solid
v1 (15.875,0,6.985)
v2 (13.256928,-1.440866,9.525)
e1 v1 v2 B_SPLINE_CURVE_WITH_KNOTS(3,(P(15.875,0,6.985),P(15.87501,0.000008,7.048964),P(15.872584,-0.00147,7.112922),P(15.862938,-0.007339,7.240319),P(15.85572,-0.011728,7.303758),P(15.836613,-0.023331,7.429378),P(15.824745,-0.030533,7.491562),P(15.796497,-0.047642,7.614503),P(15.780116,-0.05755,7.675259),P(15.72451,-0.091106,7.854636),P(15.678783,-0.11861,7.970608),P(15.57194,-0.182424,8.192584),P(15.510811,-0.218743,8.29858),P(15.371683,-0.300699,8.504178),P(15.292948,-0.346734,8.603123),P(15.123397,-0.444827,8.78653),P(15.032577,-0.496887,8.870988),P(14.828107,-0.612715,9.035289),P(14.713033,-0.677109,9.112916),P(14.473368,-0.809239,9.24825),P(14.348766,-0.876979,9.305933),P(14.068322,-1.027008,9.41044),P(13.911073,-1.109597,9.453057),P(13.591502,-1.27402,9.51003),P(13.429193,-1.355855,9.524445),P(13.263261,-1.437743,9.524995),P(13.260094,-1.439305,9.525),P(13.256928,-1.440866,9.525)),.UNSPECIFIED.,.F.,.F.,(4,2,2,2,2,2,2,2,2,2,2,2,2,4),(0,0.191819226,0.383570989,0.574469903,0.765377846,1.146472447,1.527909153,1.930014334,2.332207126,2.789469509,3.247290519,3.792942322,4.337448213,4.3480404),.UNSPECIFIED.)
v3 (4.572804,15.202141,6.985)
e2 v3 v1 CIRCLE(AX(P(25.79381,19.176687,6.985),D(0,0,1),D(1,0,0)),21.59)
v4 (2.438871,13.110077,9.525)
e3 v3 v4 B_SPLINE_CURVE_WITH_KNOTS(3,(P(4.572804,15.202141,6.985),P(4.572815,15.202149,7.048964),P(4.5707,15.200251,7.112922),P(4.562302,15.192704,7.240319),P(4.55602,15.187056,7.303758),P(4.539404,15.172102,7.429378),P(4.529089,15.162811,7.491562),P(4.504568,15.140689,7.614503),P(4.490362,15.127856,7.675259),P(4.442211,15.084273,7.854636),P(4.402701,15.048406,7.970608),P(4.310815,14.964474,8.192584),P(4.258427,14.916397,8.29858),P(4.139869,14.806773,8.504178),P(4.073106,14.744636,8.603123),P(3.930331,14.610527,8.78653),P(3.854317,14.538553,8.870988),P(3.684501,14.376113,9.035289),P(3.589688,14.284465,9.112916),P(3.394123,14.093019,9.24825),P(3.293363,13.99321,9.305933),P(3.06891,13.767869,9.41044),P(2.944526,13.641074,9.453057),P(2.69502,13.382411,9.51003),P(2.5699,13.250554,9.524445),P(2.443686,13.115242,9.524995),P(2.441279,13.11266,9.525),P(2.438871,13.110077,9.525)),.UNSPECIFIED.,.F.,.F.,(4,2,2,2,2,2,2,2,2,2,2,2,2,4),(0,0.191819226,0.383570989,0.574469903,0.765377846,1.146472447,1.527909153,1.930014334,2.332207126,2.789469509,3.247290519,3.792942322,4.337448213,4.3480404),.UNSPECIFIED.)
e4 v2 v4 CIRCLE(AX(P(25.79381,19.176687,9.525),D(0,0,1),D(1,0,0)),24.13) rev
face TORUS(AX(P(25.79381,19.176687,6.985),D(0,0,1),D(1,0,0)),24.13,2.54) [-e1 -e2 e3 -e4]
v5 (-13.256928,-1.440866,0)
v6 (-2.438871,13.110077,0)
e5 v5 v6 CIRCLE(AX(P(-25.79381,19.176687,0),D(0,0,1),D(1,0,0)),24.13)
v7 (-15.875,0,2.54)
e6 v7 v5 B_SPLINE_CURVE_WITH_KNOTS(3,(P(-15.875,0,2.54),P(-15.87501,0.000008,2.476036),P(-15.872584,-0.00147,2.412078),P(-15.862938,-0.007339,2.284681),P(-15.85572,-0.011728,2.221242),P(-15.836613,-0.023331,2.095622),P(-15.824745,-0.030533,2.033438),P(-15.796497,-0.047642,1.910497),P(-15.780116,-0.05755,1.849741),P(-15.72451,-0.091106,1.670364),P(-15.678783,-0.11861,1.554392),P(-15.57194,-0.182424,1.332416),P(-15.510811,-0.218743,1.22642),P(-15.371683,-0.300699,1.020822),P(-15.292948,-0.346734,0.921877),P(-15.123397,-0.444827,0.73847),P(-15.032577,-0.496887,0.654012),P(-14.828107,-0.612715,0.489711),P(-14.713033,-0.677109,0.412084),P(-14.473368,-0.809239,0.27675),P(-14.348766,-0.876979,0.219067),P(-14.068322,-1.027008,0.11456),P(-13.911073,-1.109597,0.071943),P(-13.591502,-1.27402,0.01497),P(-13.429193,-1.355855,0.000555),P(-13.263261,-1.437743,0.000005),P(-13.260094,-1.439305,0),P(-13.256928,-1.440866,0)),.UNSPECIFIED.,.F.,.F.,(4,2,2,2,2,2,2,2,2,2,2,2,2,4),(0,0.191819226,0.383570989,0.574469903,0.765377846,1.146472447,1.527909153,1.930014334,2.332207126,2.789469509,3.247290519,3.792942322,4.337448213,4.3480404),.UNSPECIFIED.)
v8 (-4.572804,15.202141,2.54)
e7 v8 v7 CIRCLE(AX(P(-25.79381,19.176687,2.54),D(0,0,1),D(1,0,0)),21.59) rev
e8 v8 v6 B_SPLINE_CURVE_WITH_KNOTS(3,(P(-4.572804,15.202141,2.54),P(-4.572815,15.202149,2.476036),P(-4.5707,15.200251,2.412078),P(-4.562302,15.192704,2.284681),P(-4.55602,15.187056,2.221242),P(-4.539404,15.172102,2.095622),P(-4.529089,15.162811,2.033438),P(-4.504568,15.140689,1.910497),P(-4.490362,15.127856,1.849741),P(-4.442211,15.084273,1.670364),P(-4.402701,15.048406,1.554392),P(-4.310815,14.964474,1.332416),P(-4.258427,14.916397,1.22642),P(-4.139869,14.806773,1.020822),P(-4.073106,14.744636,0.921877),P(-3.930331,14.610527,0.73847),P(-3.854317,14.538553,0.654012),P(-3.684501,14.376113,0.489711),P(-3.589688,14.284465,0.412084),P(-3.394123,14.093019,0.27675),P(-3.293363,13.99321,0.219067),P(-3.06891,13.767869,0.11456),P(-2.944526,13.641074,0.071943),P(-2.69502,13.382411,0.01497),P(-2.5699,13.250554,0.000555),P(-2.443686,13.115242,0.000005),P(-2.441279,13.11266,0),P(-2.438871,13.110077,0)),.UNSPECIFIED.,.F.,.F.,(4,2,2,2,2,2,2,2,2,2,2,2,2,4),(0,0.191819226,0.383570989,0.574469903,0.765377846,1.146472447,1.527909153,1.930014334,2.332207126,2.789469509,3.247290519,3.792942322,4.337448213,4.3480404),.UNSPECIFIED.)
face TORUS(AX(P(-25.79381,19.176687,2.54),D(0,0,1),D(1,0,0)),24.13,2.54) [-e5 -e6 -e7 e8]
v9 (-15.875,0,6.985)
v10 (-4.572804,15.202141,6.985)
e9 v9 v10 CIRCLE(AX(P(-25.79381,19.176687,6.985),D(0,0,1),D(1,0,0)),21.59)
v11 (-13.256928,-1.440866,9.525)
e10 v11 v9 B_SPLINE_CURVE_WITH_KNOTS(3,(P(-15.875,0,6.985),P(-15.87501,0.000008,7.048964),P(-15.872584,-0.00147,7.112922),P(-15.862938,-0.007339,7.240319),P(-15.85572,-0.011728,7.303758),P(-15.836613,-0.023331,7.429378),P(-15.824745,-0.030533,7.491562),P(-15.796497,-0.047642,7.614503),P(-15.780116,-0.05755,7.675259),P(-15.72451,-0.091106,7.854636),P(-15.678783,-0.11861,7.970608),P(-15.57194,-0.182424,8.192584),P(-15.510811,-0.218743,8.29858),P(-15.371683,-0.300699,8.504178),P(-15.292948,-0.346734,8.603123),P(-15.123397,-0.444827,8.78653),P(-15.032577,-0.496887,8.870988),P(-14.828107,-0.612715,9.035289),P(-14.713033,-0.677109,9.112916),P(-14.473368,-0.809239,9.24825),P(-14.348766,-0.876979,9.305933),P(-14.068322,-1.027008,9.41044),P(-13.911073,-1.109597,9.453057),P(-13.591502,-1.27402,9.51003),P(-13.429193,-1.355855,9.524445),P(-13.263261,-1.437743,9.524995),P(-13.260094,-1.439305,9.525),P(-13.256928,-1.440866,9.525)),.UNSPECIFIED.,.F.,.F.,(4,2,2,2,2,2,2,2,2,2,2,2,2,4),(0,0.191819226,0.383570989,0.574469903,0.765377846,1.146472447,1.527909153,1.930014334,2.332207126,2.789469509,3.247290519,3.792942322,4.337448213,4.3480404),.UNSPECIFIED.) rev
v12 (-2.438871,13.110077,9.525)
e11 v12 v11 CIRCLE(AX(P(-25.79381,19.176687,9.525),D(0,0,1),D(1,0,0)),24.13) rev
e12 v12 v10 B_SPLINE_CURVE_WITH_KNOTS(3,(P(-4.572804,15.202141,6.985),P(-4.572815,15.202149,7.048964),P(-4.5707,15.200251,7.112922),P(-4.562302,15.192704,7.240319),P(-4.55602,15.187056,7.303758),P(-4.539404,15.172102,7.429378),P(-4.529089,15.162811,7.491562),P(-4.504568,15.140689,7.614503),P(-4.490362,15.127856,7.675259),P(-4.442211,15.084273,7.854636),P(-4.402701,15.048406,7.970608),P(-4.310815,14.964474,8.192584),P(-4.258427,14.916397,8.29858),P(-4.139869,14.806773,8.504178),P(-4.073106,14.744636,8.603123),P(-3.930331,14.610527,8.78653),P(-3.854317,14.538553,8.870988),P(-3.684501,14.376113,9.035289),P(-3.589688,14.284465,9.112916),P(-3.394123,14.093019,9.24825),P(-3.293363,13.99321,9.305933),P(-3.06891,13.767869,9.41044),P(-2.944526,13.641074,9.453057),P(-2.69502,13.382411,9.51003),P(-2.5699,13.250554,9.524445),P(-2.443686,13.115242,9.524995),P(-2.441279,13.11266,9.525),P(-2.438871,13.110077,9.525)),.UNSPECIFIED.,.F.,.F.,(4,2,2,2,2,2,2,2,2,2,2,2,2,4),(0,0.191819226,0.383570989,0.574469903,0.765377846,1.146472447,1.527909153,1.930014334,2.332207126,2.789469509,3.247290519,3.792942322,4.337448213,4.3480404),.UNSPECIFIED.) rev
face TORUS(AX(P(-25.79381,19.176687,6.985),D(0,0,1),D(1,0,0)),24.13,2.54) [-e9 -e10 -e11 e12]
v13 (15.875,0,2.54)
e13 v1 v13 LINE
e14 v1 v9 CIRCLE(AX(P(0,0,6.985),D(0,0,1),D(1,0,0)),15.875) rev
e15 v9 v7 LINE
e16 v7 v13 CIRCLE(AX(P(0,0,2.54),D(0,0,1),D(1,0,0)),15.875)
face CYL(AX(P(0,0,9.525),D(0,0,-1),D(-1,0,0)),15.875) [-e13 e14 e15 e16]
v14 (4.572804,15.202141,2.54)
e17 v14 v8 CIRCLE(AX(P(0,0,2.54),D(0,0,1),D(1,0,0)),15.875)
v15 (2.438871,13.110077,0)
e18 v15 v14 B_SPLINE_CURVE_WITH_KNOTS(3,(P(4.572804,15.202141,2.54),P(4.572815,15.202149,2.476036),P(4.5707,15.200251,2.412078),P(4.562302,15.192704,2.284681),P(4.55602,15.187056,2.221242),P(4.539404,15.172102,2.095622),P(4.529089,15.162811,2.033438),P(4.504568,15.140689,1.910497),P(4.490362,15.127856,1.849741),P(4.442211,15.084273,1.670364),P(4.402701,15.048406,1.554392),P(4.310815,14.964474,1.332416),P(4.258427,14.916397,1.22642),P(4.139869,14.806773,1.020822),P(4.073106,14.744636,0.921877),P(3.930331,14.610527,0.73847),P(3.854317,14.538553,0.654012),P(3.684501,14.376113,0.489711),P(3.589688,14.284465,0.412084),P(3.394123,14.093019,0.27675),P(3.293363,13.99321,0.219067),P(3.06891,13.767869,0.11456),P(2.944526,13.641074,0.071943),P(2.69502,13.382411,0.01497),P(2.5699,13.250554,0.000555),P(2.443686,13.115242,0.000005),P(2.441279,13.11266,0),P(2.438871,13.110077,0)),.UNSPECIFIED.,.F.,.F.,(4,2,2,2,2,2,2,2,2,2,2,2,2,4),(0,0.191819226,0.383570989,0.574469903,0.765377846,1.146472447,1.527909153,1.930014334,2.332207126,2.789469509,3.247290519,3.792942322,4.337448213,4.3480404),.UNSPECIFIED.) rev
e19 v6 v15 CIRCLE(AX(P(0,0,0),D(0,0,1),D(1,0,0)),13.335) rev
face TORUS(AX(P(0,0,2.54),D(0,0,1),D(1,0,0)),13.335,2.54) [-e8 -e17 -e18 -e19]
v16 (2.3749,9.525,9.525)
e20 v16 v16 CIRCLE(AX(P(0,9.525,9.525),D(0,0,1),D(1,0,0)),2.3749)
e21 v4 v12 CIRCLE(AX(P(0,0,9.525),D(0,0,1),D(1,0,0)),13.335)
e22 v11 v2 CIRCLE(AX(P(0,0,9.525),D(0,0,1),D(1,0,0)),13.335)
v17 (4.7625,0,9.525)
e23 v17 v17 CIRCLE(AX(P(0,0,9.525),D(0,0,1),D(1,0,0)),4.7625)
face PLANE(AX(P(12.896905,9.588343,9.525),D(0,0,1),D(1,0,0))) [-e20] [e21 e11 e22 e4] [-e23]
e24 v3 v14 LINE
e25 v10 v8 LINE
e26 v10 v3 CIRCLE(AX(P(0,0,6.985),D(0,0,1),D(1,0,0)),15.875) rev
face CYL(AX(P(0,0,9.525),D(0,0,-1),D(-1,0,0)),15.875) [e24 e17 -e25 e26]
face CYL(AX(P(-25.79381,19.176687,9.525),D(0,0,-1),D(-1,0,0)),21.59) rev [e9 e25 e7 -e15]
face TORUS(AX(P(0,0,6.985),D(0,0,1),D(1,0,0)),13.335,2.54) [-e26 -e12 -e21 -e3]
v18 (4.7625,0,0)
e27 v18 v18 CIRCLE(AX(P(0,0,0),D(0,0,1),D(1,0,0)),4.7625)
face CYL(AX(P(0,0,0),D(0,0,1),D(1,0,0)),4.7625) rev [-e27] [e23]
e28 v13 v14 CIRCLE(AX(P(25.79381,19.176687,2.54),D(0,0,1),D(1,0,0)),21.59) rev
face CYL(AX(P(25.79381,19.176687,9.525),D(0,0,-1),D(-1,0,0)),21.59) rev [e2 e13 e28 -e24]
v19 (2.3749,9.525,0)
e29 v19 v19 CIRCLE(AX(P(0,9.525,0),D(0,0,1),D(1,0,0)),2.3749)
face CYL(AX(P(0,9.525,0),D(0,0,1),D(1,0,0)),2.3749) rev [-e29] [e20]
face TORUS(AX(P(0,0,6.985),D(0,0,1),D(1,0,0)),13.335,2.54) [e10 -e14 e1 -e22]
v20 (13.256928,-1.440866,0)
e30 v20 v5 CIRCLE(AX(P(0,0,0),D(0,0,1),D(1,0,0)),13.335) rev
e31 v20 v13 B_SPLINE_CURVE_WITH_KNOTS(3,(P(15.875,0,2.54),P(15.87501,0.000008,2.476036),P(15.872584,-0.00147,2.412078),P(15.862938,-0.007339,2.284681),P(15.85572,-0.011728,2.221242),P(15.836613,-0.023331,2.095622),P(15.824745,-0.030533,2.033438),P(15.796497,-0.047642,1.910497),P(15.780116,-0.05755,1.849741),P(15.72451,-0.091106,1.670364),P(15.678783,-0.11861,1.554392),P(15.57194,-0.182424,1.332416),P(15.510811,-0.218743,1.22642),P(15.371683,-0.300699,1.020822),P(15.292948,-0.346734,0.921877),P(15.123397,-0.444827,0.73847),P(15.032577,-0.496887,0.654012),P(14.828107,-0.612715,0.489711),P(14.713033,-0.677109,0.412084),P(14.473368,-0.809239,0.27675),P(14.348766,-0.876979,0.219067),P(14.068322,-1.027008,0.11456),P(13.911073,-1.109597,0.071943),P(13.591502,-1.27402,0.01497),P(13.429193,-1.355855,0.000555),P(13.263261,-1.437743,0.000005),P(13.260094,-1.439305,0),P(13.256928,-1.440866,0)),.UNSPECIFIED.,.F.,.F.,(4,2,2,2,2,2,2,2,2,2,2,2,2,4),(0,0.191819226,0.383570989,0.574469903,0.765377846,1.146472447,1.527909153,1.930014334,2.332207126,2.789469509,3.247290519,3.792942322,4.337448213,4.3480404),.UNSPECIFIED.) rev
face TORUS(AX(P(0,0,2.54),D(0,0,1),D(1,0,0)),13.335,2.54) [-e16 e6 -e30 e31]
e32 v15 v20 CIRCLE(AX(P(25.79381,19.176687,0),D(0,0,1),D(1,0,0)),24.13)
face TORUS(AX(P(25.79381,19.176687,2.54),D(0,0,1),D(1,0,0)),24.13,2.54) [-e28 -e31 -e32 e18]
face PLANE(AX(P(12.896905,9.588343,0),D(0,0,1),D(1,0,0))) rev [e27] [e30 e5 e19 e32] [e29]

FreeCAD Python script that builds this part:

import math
import FreeCAD as App
import Part
import Sketcher
from FreeCAD import Vector
Q = App.Units.Quantity


def edges_at(feature, points):
    """Names of the edges that pass closest to the given points."""
    edges = feature.Shape.Edges
    near = lambda p: min(range(len(edges)), key=lambda i: edges[i].distToShape(Part.Vertex(*p))[0])
    return sorted({f"Edge{near(p) + 1}" for p in points})

doc = App.newDocument("Part")
params = doc.addObject("Spreadsheet::Sheet", "Params")
for row, (alias, value) in enumerate([
    ("sketch1_radius", "0.85 in"),
    ("sketch1_radius2", "0.625 in"),
    ("pad1_length", "0.375 in"),
    ("sketch2_diameter", "0.375 in"),
    ("sketch2_diameter2", "0.187 in"),
    ("pocket1_length", "0.375 in"),
    ("fillet_radius", "0.1 in"),
], start=1):
    params.set(f"A{row}", alias)
    params.set(f"B{row}", "=" + value)
    params.setAlias(f"B{row}", alias)

body = doc.addObject("PartDesign::Body", "Body")

sketch1 = doc.addObject("Sketcher::SketchObject", "Sketch")
body.addObject(sketch1)
sketch1.AttachmentSupport = (doc.XY_Plane, [""])
sketch1.MapMode = "FlatFace"
sketch1.addGeometry(Part.ArcOfCircle(Part.Circle(Vector(0, 0, 0), Vector(0, 0, 1), 15.875), math.radians(73.258713), math.radians(106.741287)), False)
sketch1.addGeometry(Part.ArcOfCircle(Part.Circle(Vector(-25.79381, 19.176687, 0), Vector(0, 0, 1), 21.59), math.radians(-62.650516), math.radians(-10.608197)), False)
sketch1.addGeometry(Part.ArcOfCircle(Part.Circle(Vector(0, 0, 0), Vector(0, 0, 1), 15.875), math.radians(180), math.radians(360)), False)
sketch1.addGeometry(Part.ArcOfCircle(Part.Circle(Vector(25.79381, 19.176687, 0), Vector(0, 0, 1), 21.59), math.radians(-169.391803), math.radians(-117.349484)), False)
sketch1.addConstraint(Sketcher.Constraint("Coincident", 0, 2, 1, 2))
sketch1.addConstraint(Sketcher.Constraint("Coincident", 1, 1, 2, 1))
sketch1.addConstraint(Sketcher.Constraint("Coincident", 2, 2, 3, 2))
sketch1.addConstraint(Sketcher.Constraint("Coincident", 3, 1, 0, 1))
sketch1.addConstraint(Sketcher.Constraint("Coincident", 0, 3, -1, 1))
sketch1.addConstraint(Sketcher.Constraint("Coincident", 2, 3, -1, 1))
sketch1.addConstraint(Sketcher.Constraint("Equal", 0, 2))
sketch1.addConstraint(Sketcher.Constraint("Equal", 1, 3))
sketch1.addConstraint(Sketcher.Constraint("Symmetric", 1, 3, 3, 3, -2))
sketch1.addConstraint(Sketcher.Constraint("PointOnObject", 1, 1, -1))
sketch1.addConstraint(Sketcher.Constraint("Radius", 1, Q("0.85 in")))
sketch1.addConstraint(Sketcher.Constraint("Radius", 0, Q("0.625 in")))
sketch1.addConstraint(Sketcher.Constraint("DistanceX", 1, 3, -1, 1, 25.79381))
sketch1.setExpression("Constraints[10]", "Params.sketch1_radius")
sketch1.setExpression("Constraints[11]", "Params.sketch1_radius2")
pad1 = doc.addObject("PartDesign::Pad", "Pad")
body.addObject(pad1)
pad1.Profile = sketch1
pad1.setExpression("Length", "Params.pad1_length")

sketch2 = doc.addObject("Sketcher::SketchObject", "Sketch001")
body.addObject(sketch2)
sketch2.AttachmentSupport = (doc.XY_Plane, [""])
sketch2.MapMode = "FlatFace"
sketch2.AttachmentOffset = App.Placement(Vector(0, 0, 0.375 * 25.4), App.Rotation())
sketch2.addGeometry(Part.Circle(Vector(0, 0, 0), Vector(0, 0, 1), 4.7625), False)
sketch2.addGeometry(Part.Circle(Vector(0, 9.525, 0), Vector(0, 0, 1), 2.3749), False)
sketch2.addConstraint(Sketcher.Constraint("Coincident", 0, 3, -1, 1))
sketch2.addConstraint(Sketcher.Constraint("PointOnObject", 1, 3, -2))
sketch2.addConstraint(Sketcher.Constraint("Diameter", 0, Q("0.375 in")))
sketch2.addConstraint(Sketcher.Constraint("Diameter", 1, Q("0.187 in")))
sketch2.addConstraint(Sketcher.Constraint("DistanceY", -1, 1, 1, 3, Q("0.375 in")))
sketch2.setExpression("Constraints[2]", "Params.sketch2_diameter")
sketch2.setExpression("Constraints[3]", "Params.sketch2_diameter2")
pocket1 = doc.addObject("PartDesign::Pocket", "Pocket")
body.addObject(pocket1)
pocket1.Profile = sketch2
pocket1.setExpression("Length", "Params.pocket1_length")
doc.recompute()

fillet = doc.addObject("PartDesign::Fillet", "Fillet")
body.addObject(fillet)
fillet.Base = (pocket1, edges_at(pocket1, [
    (-8.468, 6.295, 9.525),
    (0, -15.875, 9.525),
    (8.468, 6.295, 9.525),
    (0, -15.875, 0),
    (-8.468, 6.295, 0),
    (0, 15.875, 0),
    (8.468, 6.295, 0),
    (0, 15.875, 9.525),
]))
fillet.setExpression("Radius", "Params.fillet_radius")

doc.recompute()
